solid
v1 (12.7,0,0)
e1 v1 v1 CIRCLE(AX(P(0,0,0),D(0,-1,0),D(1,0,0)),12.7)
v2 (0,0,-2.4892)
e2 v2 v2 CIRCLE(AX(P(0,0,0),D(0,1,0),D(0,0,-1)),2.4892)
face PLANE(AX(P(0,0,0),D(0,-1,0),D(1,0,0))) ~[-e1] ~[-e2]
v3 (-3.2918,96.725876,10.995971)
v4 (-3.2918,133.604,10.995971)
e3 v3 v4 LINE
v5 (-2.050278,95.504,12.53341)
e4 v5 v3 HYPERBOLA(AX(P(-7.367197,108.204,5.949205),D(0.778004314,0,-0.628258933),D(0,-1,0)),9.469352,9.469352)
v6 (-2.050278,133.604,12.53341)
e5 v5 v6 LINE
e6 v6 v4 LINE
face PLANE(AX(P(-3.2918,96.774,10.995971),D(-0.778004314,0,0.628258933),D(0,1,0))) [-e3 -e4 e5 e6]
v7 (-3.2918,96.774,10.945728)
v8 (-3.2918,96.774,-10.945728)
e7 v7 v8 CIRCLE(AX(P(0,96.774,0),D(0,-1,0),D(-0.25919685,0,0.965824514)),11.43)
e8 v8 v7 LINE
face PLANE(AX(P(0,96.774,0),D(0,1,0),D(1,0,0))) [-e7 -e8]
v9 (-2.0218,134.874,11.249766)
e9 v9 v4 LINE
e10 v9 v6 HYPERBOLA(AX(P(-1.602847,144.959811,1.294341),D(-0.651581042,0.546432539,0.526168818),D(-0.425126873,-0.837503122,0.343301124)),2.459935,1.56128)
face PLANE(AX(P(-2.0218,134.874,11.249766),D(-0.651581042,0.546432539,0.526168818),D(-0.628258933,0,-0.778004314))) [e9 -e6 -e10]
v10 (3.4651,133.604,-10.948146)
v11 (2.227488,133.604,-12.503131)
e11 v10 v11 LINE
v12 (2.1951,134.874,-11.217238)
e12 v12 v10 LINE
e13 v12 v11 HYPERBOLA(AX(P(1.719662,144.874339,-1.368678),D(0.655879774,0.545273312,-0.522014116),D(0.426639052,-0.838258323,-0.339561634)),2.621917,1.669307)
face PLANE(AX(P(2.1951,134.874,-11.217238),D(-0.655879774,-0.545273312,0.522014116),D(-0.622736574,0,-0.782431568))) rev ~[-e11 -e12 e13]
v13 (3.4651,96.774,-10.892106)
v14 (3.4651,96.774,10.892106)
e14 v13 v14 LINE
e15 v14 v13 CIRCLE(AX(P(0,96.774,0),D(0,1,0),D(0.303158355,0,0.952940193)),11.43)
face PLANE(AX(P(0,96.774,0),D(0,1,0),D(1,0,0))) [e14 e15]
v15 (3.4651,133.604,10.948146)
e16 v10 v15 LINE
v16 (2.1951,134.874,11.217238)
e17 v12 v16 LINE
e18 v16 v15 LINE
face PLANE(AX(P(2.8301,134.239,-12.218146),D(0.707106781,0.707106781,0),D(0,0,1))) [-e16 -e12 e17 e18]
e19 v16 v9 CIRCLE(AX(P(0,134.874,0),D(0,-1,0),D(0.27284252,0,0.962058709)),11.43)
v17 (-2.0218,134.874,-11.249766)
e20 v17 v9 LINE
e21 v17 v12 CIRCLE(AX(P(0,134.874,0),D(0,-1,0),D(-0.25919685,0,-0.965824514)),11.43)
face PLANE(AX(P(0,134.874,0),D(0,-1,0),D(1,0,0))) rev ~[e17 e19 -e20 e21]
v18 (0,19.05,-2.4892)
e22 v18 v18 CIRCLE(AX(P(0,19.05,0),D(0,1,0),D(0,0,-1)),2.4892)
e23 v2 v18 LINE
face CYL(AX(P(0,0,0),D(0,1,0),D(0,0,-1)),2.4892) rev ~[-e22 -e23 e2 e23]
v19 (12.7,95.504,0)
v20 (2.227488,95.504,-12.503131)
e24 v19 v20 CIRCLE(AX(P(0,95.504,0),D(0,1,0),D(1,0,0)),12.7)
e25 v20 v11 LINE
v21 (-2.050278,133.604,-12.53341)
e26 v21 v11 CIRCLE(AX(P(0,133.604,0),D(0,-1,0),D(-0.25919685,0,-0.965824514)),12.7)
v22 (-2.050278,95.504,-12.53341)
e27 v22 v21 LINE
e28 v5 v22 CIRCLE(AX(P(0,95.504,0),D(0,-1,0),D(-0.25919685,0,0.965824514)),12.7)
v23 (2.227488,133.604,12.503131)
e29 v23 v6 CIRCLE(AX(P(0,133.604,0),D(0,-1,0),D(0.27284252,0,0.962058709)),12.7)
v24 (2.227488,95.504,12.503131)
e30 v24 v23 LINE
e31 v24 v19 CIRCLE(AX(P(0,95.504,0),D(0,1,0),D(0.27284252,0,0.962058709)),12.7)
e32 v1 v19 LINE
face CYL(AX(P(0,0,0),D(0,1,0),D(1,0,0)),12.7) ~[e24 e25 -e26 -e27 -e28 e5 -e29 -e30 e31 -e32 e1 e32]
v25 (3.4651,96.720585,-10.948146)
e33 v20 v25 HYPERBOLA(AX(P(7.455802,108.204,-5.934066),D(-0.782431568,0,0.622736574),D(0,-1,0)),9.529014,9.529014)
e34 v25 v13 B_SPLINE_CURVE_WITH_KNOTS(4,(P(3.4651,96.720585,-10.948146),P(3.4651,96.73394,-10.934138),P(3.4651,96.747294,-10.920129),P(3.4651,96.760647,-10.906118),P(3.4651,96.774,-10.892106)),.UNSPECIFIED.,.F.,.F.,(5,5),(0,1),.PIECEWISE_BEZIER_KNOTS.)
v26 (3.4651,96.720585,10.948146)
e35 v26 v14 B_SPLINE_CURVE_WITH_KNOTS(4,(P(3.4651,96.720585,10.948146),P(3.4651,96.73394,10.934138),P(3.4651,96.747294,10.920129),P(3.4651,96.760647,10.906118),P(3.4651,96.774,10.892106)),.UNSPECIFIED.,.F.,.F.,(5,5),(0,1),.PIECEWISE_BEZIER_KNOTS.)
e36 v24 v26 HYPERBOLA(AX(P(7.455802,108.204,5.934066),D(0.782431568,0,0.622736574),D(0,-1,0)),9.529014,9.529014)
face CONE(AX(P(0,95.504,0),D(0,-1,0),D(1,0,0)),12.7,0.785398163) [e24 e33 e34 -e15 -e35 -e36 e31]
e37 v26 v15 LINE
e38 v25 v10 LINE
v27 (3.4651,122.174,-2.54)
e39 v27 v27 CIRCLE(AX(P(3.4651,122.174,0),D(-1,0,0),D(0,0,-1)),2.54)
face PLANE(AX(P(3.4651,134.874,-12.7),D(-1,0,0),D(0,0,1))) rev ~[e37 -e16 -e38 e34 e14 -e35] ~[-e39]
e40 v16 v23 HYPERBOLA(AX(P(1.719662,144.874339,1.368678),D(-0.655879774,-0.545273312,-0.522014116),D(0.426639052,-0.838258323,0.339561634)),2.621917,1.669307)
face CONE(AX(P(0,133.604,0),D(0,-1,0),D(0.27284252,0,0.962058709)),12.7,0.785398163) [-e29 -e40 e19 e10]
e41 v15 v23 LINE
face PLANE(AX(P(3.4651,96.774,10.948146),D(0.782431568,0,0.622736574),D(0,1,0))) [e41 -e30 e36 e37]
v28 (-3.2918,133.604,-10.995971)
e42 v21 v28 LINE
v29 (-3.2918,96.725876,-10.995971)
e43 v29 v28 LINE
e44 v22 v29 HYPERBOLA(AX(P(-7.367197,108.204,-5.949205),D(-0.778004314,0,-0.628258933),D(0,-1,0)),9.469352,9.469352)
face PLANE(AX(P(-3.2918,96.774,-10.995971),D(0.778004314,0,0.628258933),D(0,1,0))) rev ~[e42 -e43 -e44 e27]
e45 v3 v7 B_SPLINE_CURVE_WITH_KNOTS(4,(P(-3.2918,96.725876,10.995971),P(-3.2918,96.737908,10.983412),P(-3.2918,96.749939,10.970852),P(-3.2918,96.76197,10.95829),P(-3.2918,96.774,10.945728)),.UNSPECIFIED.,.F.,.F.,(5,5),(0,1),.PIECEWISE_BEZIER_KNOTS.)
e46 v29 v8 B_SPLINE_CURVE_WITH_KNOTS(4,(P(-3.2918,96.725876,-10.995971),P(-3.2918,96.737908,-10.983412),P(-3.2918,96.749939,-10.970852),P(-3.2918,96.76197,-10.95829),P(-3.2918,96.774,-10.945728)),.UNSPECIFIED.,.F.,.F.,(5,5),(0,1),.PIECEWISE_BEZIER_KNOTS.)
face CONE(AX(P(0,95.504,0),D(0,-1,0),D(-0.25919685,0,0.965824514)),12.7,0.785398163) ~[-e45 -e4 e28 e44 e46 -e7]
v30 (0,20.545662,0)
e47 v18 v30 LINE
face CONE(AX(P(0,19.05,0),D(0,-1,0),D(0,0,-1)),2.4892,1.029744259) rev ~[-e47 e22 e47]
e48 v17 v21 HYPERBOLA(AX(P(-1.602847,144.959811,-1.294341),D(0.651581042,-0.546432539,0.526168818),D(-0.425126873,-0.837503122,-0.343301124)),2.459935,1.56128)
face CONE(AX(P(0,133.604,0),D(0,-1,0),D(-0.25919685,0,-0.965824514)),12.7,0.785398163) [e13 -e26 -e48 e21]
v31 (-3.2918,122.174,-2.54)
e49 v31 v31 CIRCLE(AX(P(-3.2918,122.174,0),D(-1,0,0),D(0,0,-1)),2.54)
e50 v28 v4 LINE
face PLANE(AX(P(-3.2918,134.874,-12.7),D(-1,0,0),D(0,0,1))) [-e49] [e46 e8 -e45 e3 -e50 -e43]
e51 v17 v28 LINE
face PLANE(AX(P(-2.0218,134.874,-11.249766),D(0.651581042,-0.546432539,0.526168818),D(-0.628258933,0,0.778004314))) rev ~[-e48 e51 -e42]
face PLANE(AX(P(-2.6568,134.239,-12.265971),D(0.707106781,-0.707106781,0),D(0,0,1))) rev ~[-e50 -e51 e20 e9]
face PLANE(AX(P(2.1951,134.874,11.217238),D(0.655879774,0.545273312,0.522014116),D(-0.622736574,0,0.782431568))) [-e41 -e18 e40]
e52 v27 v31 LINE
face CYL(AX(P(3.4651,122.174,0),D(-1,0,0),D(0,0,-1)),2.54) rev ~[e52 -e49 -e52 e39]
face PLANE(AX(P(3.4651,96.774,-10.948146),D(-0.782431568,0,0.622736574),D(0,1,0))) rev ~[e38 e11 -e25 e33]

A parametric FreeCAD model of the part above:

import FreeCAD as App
import Part
import Sketcher

V = App.Vector
Q = App.Units.Quantity


def edges_at(feature, points):
    """Names of the edges that pass closest to the given points."""
    edges = feature.Shape.Edges
    near = lambda p: min(range(len(edges)), key=lambda i: edges[i].distToShape(Part.Vertex(*p))[0])
    return sorted({f"Edge{near(p) + 1}" for p in points})


def add_polygon(sketch, points):
    """Adds a closed chain of lines whose ends are joined by coincident constraints."""
    first, n = sketch.GeometryCount, len(points)
    for a, b in zip(points, points[1:] + points[:1]):
        sketch.addGeometry(Part.LineSegment(App.Vector(*a, 0), App.Vector(*b, 0)), False)
    for i in range(n):
        sketch.addConstraint(Sketcher.Constraint("Coincident", first + i, 2, first + (i + 1) % n, 1))

doc = App.newDocument("Part")
body = doc.addObject("PartDesign::Body", "Body")

# Sketch on XY plane
sketch1 = body.newObject("Sketcher::SketchObject", "Sketch")
sketch1.AttachmentSupport = (doc.getObject("XY_Plane"), [""])
sketch1.MapMode = "FlatFace"
add_polygon(sketch1, [(0, 134.9), (0, -12.7), (2.5, -12.7), (2.5, 0), (12.7, 0), (12.7, 134.9)])  # lines 0-5
sketch1.addConstraint(Sketcher.Constraint("Vertical", 0))
sketch1.addConstraint(Sketcher.Constraint("Horizontal", 1))
sketch1.addConstraint(Sketcher.Constraint("Vertical", 2))
sketch1.addConstraint(Sketcher.Constraint("Horizontal", 3))
sketch1.addConstraint(Sketcher.Constraint("Vertical", 4))
sketch1.addConstraint(Sketcher.Constraint("Horizontal", 5))
sketch1.addConstraint(Sketcher.Constraint("PointOnObject", 0, 2, -2))
sketch1.addConstraint(Sketcher.Constraint("PointOnObject", 2, 2, -1))
sketch1.addConstraint(Sketcher.Constraint("Equal", 5, 2))
sketch1.addConstraint(Sketcher.Constraint("DistanceX", 1, 1, 1, 2, Q("0.1 in")))
sketch1.addConstraint(Sketcher.Constraint("DistanceX", 5, 2, 5, 1, Q("0.5 in")))
sketch1.addConstraint(Sketcher.Constraint("DistanceY", 4, 1, 4, 2, Q("5.31 in")))
revolution = body.newObject("PartDesign::Revolution", "Revolution")
revolution.Profile = sketch1
revolution.ReferenceAxis = (sketch1, ["V_Axis"])
revolution.Angle = 360

# Sketch on XZ plane
sketch2 = body.newObject("Sketcher::SketchObject", "Sketch001")
sketch2.AttachmentSupport = (doc.getObject("XZ_Plane"), [""])
sketch2.MapMode = "FlatFace"
sketch2.AttachmentOffset = App.Placement(V(0, 0, -5.31 * 25.4), App.Rotation())
add_polygon(sketch2, [(-13, 13), (-3, 13), (-3, -13), (-13, -13)])  # lines 0-3
add_polygon(sketch2, [(3, -13), (3, 13), (13, 13), (13, -13)])  # lines 4-7
sketch2.addConstraint(Sketcher.Constraint("Horizontal", 0))
sketch2.addConstraint(Sketcher.Constraint("Vertical", 1))
sketch2.addConstraint(Sketcher.Constraint("Horizontal", 2))
sketch2.addConstraint(Sketcher.Constraint("Vertical", 3))
sketch2.addConstraint(Sketcher.Constraint("Vertical", 4))
sketch2.addConstraint(Sketcher.Constraint("Horizontal", 5))
sketch2.addConstraint(Sketcher.Constraint("Vertical", 6))
sketch2.addConstraint(Sketcher.Constraint("Horizontal", 7))
sketch2.addConstraint(Sketcher.Constraint("Symmetric", 2, 2, 5, 2, -1, 1))
sketch2.addConstraint(Sketcher.Constraint("Horizontal", 3, 2, 4, 2))
sketch2.addConstraint(Sketcher.Constraint("Horizontal", 2, 2, 6, 2))
sketch2.addConstraint(Sketcher.Constraint("DistanceY", 1, 2, 1, 1, Q("1 in")))
sketch2.addConstraint(Sketcher.Constraint("DistanceX", 3, 2, 5, 2, Q("1 in")))
sketch2.addConstraint(Sketcher.Constraint("DistanceX", 0, 1, 0, 2, Q("0.3704 in")))
sketch2.addConstraint(Sketcher.Constraint("DistanceX", 5, 1, 5, 2, Q("9.235 mm")))
pocket1 = body.newObject("PartDesign::Pocket", "Pocket")
pocket1.Profile = sketch2
pocket1.Length = Q("1.5 in")
pocket1.Reversed = True

# Sketch on YZ plane
sketch3 = body.newObject("Sketcher::SketchObject", "Sketch002")
sketch3.AttachmentSupport = (doc.getObject("YZ_Plane"), [""])
sketch3.MapMode = "FlatFace"
sketch3.AttachmentOffset = App.Placement(V(0, 0, 3.4651), App.Rotation())
sketch3.addGeometry(Part.Circle(V(122.2, 0, 0), V(0, 0, 1), 2.5), False)
sketch3.addConstraint(Sketcher.Constraint("PointOnObject", 0, 3, -1))
sketch3.addConstraint(Sketcher.Constraint("Diameter", 0, Q("0.2 in")))
sketch3.addConstraint(Sketcher.Constraint("DistanceX", -1, 1, 0, 3, Q("4.81 in")))
doc.recompute()
hole = body.newObject("PartDesign::Hole", "Hole")
hole.Profile = sketch3
hole.ThreadType = "None"
hole.Diameter = Q("0.2 in")
hole.DepthType = "ThroughAll"
doc.recompute()

chamfer = body.newObject("PartDesign::Chamfer", "Chamfer")
chamfer.Base = (hole, edges_at(hole, [
    (10.132, 96.774, -7.658),
    (10.132, 96.774, 7.658),
    (3.465, 115.824, -12.218),
    (3.465, 115.824, 12.218),
    (3.465, 134.874, 0),
    (0.09, 134.874, -12.7),
    (0.09, 134.874, 12.7),
    (-3.292, 134.874, 0),
    (-3.292, 115.824, -12.266),
    (-3.292, 115.824, 12.266),
    (-12.7, 96.774, 0),
    (-2.54, -12.7, 0),
]))
chamfer.Size = Q("0.05 in")

# Sketch on XZ plane
sketch4 = body.newObject("Sketcher::SketchObject", "Sketch003")
sketch4.AttachmentSupport = (doc.getObject("XZ_Plane"), [""])
sketch4.MapMode = "FlatFace"
sketch4.AttachmentOffset = App.Placement(V(0, 0, 0.5 * 25.4), App.Rotation())
sketch4.addGeometry(Part.Circle(V(0, 0, 0), V(0, 0, 1), 2.5), False)
sketch4.addConstraint(Sketcher.Constraint("Coincident", 0, 3, -1, 1))
sketch4.addConstraint(Sketcher.Constraint("Diameter", 0, Q("0.2 in")))
pocket2 = body.newObject("PartDesign::Pocket", "Pocket001")
pocket2.Profile = sketch4
pocket2.Length = Q("0.5 in")

# Sketch on XZ plane
sketch5 = body.newObject("Sketcher::SketchObject", "Sketch004")
sketch5.AttachmentSupport = (doc.getObject("XZ_Plane"), [""])
sketch5.MapMode = "FlatFace"
sketch5.addGeometry(Part.Circle(V(0, 0, 0), V(0, 0, 1), 2.5), False)
sketch5.addConstraint(Sketcher.Constraint("Coincident", 0, 3, -1, 1))
sketch5.addConstraint(Sketcher.Constraint("Diameter", 0, Q("0.196 in")))
doc.recompute()
hole2 = body.newObject("PartDesign::Hole", "Hole001")
hole2.Profile = sketch5
hole2.ThreadType = "None"
hole2.Diameter = Q("0.196 in")
hole2.DepthType = "Dimension"
hole2.Depth = Q("0.75 in")
hole2.DrillPoint = "Angled"
hole2.DrillPointAngle = 118

doc.recompute()
